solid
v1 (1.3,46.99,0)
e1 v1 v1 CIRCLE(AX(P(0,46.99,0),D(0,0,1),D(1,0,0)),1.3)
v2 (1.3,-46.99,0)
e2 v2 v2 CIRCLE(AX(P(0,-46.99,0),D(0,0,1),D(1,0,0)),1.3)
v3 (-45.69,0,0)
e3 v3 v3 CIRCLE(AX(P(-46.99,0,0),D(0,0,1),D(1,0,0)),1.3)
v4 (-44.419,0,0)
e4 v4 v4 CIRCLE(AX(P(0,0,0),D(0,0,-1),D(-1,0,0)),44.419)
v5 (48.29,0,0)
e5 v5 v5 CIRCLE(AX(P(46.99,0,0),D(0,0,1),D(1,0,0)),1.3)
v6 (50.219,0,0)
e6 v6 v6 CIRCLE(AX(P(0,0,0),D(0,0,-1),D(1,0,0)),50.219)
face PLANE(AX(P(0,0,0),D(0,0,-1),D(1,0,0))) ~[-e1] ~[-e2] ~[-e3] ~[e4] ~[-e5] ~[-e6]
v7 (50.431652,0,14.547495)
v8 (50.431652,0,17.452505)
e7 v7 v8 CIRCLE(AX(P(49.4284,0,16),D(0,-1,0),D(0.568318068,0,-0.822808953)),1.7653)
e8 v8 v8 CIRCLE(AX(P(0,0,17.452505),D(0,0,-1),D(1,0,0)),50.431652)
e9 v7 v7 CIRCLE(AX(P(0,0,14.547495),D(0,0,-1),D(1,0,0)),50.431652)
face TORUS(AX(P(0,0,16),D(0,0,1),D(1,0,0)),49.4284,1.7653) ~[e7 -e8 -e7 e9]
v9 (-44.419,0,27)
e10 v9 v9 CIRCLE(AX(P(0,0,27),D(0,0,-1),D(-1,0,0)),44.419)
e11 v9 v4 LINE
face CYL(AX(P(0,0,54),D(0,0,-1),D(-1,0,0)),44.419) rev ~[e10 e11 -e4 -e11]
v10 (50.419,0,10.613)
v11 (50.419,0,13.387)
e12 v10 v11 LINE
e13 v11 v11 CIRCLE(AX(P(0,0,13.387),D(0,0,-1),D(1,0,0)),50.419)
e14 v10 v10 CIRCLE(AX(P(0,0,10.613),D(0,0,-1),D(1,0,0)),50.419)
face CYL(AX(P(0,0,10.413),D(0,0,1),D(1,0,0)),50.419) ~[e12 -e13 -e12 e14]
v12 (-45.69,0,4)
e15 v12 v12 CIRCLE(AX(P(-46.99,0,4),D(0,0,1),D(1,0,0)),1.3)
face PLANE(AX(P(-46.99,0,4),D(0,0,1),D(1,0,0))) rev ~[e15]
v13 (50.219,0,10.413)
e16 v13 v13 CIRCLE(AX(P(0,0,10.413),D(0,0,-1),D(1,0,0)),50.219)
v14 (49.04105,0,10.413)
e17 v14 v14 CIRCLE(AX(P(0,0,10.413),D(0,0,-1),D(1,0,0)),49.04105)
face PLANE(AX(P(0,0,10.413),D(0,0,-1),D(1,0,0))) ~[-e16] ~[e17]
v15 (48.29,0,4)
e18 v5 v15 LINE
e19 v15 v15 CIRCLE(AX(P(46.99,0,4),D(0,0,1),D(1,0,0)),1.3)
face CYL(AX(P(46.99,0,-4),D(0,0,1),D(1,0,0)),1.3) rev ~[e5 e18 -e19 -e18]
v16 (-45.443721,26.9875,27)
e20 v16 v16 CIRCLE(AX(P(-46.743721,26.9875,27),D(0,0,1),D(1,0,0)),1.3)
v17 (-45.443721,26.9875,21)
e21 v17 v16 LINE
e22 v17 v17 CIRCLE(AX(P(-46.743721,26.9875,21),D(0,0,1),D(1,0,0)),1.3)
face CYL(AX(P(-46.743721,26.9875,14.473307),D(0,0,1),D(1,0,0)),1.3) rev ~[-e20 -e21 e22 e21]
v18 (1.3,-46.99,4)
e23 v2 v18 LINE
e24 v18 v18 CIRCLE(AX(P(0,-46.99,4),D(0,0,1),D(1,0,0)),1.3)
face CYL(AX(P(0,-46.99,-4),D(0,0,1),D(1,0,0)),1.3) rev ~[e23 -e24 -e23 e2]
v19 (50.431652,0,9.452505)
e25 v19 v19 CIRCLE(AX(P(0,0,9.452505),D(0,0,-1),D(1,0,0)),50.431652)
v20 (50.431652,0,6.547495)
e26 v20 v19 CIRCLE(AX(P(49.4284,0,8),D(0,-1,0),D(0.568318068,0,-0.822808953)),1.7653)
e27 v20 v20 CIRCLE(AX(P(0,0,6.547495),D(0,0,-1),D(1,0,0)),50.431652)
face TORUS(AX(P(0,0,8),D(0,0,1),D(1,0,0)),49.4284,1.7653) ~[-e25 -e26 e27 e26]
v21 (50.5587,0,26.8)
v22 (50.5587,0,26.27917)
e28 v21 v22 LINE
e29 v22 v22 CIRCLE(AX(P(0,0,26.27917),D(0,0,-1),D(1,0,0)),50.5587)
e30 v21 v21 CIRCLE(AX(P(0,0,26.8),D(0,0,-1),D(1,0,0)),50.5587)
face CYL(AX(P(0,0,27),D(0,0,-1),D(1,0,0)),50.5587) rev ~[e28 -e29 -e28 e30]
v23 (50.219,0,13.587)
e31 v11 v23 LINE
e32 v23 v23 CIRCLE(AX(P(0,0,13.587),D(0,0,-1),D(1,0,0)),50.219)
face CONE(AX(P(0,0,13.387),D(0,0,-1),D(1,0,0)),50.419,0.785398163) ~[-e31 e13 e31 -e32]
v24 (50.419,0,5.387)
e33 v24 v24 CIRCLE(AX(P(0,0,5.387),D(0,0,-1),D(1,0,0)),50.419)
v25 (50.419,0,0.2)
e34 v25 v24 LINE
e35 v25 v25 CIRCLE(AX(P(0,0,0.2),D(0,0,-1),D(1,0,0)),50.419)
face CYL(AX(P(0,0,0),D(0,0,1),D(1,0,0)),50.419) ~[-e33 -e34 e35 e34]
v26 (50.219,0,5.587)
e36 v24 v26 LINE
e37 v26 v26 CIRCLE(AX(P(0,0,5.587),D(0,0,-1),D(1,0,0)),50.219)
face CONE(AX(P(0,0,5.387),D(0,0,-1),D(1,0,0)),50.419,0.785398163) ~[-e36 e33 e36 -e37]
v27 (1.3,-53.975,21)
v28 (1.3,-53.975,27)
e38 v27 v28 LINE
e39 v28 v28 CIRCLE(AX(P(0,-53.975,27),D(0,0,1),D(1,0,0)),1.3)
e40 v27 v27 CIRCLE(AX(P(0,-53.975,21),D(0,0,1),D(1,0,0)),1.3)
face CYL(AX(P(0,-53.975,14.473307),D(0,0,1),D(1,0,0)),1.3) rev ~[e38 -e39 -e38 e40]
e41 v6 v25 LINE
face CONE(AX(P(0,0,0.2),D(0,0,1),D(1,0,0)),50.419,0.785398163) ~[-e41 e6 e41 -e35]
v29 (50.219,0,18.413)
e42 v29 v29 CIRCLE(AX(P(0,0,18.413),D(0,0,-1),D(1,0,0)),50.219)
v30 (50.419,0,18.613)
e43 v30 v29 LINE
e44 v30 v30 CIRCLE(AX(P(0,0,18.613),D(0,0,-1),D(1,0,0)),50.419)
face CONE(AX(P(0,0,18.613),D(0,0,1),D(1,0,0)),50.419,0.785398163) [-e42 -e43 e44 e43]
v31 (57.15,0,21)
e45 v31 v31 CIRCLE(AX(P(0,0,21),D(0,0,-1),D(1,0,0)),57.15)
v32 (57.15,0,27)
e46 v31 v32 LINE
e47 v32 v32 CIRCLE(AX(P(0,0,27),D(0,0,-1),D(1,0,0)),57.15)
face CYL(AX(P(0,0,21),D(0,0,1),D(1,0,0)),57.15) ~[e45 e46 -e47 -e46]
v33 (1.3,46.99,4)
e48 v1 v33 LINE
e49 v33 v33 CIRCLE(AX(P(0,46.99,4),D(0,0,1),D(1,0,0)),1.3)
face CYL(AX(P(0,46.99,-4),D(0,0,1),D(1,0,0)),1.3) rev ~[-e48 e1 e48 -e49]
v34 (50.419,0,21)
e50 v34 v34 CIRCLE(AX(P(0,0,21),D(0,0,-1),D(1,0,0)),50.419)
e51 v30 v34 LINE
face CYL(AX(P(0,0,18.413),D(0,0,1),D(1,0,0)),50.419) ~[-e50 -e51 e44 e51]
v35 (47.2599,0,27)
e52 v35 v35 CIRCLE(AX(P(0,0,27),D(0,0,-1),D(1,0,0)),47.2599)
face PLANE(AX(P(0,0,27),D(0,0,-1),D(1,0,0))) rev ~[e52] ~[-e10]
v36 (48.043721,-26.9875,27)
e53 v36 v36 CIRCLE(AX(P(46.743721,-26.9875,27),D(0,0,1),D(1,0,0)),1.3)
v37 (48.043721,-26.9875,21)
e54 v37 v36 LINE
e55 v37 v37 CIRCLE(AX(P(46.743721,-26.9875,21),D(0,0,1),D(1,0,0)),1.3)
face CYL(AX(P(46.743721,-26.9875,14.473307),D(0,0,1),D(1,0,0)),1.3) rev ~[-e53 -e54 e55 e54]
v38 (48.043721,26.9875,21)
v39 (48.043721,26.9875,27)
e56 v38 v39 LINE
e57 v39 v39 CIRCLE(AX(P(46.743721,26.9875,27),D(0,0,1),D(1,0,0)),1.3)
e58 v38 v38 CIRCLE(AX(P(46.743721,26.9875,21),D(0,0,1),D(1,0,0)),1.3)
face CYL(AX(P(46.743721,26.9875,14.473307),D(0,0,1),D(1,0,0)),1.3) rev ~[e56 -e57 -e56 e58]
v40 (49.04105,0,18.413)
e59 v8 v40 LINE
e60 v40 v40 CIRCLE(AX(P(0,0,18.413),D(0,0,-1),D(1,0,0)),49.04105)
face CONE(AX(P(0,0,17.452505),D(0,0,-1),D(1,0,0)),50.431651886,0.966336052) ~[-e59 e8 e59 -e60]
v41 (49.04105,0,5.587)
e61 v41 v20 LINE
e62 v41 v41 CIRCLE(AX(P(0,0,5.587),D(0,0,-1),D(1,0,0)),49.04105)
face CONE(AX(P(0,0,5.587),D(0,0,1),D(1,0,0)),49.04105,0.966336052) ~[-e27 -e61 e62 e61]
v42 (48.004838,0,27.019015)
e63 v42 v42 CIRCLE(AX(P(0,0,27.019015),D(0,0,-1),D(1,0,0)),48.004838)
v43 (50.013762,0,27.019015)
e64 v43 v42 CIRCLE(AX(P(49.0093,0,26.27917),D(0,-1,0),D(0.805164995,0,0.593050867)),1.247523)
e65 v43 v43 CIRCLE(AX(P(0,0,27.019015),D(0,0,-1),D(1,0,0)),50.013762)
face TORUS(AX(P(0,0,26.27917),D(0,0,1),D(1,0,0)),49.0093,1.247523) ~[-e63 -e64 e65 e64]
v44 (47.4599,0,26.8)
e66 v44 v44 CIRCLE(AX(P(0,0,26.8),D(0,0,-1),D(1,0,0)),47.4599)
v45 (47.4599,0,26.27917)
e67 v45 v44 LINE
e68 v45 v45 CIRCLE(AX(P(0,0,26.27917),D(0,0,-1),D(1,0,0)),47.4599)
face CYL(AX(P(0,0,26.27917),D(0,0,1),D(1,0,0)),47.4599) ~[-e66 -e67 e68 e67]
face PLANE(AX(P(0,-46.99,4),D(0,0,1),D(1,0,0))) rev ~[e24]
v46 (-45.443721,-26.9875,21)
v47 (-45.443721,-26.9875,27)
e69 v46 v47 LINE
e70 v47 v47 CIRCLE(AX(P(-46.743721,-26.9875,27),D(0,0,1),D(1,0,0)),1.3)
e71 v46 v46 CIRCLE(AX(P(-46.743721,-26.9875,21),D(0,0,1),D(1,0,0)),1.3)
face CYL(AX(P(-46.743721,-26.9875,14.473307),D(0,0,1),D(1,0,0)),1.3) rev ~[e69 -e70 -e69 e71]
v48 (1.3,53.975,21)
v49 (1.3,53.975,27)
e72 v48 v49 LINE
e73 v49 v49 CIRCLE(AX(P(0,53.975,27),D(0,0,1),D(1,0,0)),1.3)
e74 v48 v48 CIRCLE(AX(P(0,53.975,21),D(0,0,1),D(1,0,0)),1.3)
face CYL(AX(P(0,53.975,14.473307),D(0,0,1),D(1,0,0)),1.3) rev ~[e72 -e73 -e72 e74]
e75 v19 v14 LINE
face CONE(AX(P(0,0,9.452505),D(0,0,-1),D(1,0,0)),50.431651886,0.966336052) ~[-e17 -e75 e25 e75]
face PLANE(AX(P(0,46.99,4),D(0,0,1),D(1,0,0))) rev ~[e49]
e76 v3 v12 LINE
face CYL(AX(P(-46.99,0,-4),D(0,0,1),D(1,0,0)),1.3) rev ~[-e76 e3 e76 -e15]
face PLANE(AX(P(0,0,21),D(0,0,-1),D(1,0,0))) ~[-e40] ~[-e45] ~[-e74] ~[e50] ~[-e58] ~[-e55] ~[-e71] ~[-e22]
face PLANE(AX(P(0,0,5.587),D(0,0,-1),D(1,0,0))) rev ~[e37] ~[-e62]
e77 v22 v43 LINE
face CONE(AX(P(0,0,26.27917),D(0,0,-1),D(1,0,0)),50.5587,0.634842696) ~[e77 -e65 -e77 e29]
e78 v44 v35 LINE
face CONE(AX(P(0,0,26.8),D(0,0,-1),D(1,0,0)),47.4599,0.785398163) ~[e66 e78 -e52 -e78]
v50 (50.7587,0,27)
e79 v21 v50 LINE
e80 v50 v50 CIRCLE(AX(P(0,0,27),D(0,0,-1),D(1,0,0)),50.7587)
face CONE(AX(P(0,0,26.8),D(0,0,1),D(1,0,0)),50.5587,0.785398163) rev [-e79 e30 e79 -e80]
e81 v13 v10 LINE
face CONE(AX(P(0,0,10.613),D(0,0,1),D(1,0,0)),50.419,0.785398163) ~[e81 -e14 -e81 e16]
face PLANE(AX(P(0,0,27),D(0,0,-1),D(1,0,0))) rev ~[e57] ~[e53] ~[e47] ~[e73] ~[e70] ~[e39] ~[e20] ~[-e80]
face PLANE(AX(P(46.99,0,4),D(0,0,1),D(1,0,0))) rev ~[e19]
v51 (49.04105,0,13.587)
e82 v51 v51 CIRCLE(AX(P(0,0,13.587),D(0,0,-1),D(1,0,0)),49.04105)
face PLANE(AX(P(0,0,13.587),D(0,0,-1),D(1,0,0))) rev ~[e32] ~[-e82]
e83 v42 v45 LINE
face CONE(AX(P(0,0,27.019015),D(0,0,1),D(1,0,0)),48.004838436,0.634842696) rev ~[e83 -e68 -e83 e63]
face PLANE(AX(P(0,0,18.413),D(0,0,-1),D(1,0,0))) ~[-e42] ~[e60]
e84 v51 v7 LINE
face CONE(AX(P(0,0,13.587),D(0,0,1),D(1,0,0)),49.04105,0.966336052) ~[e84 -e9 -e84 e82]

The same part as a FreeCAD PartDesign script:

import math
import FreeCAD as App
import Part
import Sketcher
from FreeCAD import Vector
Q = App.Units.Quantity


def edges_at(feature, points):
    """Names of the edges that pass closest to the given points."""
    edges = feature.Shape.Edges
    near = lambda p: min(range(len(edges)), key=lambda i: edges[i].distToShape(Part.Vertex(*p))[0])
    return sorted({f"Edge{near(p) + 1}" for p in points})

doc = App.newDocument("Part")
params = doc.addObject("Spreadsheet::Sheet", "Params")
for row, (alias, value) in enumerate([
    ("sketch1_height", "27 mm"),
    ("sketch1_height2", "6 mm"),
    ("revolution_angle", "360 deg"),
    ("sketch2_diameter", "2.6 mm"),
    ("hole_diameter", "2.6 mm"),
    ("hole_depth", "4 mm"),
    ("sketch3_diameter", "2.6 mm"),
    ("hole2_diameter", "2.6 mm"),
    ("hole2_depth", "6.526693 mm"),
    ("hole3_diameter", "88.838 mm"),
    ("hole3_depth", "27 mm"),
    ("chamfer_size", "0.2 mm"),
], start=1):
    params.set(f"A{row}", alias)
    params.set(f"B{row}", "=" + value)
    params.setAlias(f"B{row}", alias)

body = doc.addObject("PartDesign::Body", "Body")

sketch1 = doc.addObject("Sketcher::SketchObject", "Sketch")
body.addObject(sketch1)
sketch1.AttachmentSupport = (doc.XZ_Plane, [""])
sketch1.MapMode = "FlatFace"
sketch1.addGeometry(Part.LineSegment(Vector(47.2599, 27, 0), Vector(0, 27, 0)), False)
sketch1.addGeometry(Part.LineSegment(Vector(0, 27, 0), Vector(0, 0, 0)), False)
sketch1.addGeometry(Part.LineSegment(Vector(0, 0, 0), Vector(50.419, 0, 0)), False)
sketch1.addGeometry(Part.LineSegment(Vector(50.419, 0, 0), Vector(50.419, 5.587, 0)), False)
sketch1.addGeometry(Part.LineSegment(Vector(50.419, 5.587, 0), Vector(49.04105, 5.587, 0)), False)
sketch1.addGeometry(Part.LineSegment(Vector(49.04105, 5.587, 0), Vector(50.431652, 6.547495, 0)), False)
sketch1.addGeometry(Part.ArcOfCircle(Part.Circle(Vector(49.4284, 8, 0), Vector(0, 0, 1), 1.7653), math.radians(-55.366977), math.radians(55.366977)), False)
sketch1.addGeometry(Part.LineSegment(Vector(50.431652, 9.452505, 0), Vector(49.04105, 10.413, 0)), False)
sketch1.addGeometry(Part.LineSegment(Vector(49.04105, 10.413, 0), Vector(50.419, 10.413, 0)), False)
sketch1.addGeometry(Part.LineSegment(Vector(50.419, 10.413, 0), Vector(50.419, 13.587, 0)), False)
sketch1.addGeometry(Part.LineSegment(Vector(50.419, 13.587, 0), Vector(49.04105, 13.587, 0)), False)
sketch1.addGeometry(Part.LineSegment(Vector(49.04105, 13.587, 0), Vector(50.431652, 14.547495, 0)), False)
sketch1.addGeometry(Part.ArcOfCircle(Part.Circle(Vector(49.4284, 16, 0), Vector(0, 0, 1), 1.7653), math.radians(-55.366977), math.radians(55.366977)), False)
sketch1.addGeometry(Part.LineSegment(Vector(50.431652, 17.452505, 0), Vector(49.04105, 18.413, 0)), False)
sketch1.addGeometry(Part.LineSegment(Vector(49.04105, 18.413, 0), Vector(50.419, 18.413, 0)), False)
sketch1.addGeometry(Part.LineSegment(Vector(50.419, 18.413, 0), Vector(50.419, 21, 0)), False)
sketch1.addGeometry(Part.LineSegment(Vector(50.419, 21, 0), Vector(57.15, 21, 0)), False)
sketch1.addGeometry(Part.LineSegment(Vector(57.15, 21, 0), Vector(57.15, 27, 0)), False)
sketch1.addGeometry(Part.LineSegment(Vector(57.15, 27, 0), Vector(50.5587, 27, 0)), False)
sketch1.addGeometry(Part.LineSegment(Vector(50.5587, 27, 0), Vector(50.5587, 26.27917, 0)), False)
sketch1.addGeometry(Part.LineSegment(Vector(50.5587, 26.27917, 0), Vector(50.013762, 27.019015, 0)), False)
sketch1.addGeometry(Part.ArcOfCircle(Part.Circle(Vector(49.0093, 26.27917, 0), Vector(0, 0, 1), 1.247523), math.radians(36.373807), math.radians(143.626193)), False)
sketch1.addGeometry(Part.LineSegment(Vector(48.004838, 27.019015, 0), Vector(47.4599, 26.27917, 0)), False)
sketch1.addGeometry(Part.LineSegment(Vector(47.4599, 26.27917, 0), Vector(47.4599, 26.8, 0)), False)
sketch1.addGeometry(Part.LineSegment(Vector(47.4599, 26.8, 0), Vector(47.2599, 27, 0)), False)
sketch1.addConstraint(Sketcher.Constraint("Coincident", 0, 2, 1, 1))
sketch1.addConstraint(Sketcher.Constraint("Coincident", 1, 2, 2, 1))
sketch1.addConstraint(Sketcher.Constraint("Coincident", 2, 2, 3, 1))
sketch1.addConstraint(Sketcher.Constraint("Coincident", 3, 2, 4, 1))
sketch1.addConstraint(Sketcher.Constraint("Coincident", 4, 2, 5, 1))
sketch1.addConstraint(Sketcher.Constraint("Tangent", 5, 2, 6, 1))
sketch1.addConstraint(Sketcher.Constraint("Tangent", 6, 2, 7, 1))
sketch1.addConstraint(Sketcher.Constraint("Coincident", 7, 2, 8, 1))
sketch1.addConstraint(Sketcher.Constraint("Coincident", 8, 2, 9, 1))
sketch1.addConstraint(Sketcher.Constraint("Coincident", 9, 2, 10, 1))
sketch1.addConstraint(Sketcher.Constraint("Coincident", 10, 2, 11, 1))
sketch1.addConstraint(Sketcher.Constraint("Tangent", 11, 2, 12, 1))
sketch1.addConstraint(Sketcher.Constraint("Tangent", 12, 2, 13, 1))
sketch1.addConstraint(Sketcher.Constraint("Coincident", 13, 2, 14, 1))
sketch1.addConstraint(Sketcher.Constraint("Coincident", 14, 2, 15, 1))
sketch1.addConstraint(Sketcher.Constraint("Coincident", 15, 2, 16, 1))
sketch1.addConstraint(Sketcher.Constraint("Coincident", 16, 2, 17, 1))
sketch1.addConstraint(Sketcher.Constraint("Coincident", 17, 2, 18, 1))
sketch1.addConstraint(Sketcher.Constraint("Coincident", 18, 2, 19, 1))
sketch1.addConstraint(Sketcher.Constraint("Coincident", 19, 2, 20, 1))
sketch1.addConstraint(Sketcher.Constraint("Tangent", 20, 2, 21, 1))
sketch1.addConstraint(Sketcher.Constraint("Tangent", 21, 2, 22, 1))
sketch1.addConstraint(Sketcher.Constraint("Coincident", 22, 2, 23, 1))
sketch1.addConstraint(Sketcher.Constraint("Coincident", 23, 2, 24, 1))
sketch1.addConstraint(Sketcher.Constraint("Coincident", 24, 2, 0, 1))
sketch1.addConstraint(Sketcher.Constraint("Horizontal", 0))
sketch1.addConstraint(Sketcher.Constraint("Vertical", 1))
sketch1.addConstraint(Sketcher.Constraint("Horizontal", 2))
sketch1.addConstraint(Sketcher.Constraint("Vertical", 3))
sketch1.addConstraint(Sketcher.Constraint("Horizontal", 4))
sketch1.addConstraint(Sketcher.Constraint("Horizontal", 8))
sketch1.addConstraint(Sketcher.Constraint("Vertical", 9))
sketch1.addConstraint(Sketcher.Constraint("Horizontal", 10))
sketch1.addConstraint(Sketcher.Constraint("Horizontal", 14))
sketch1.addConstraint(Sketcher.Constraint("Vertical", 15))
sketch1.addConstraint(Sketcher.Constraint("Horizontal", 16))
sketch1.addConstraint(Sketcher.Constraint("Vertical", 17))
sketch1.addConstraint(Sketcher.Constraint("Horizontal", 18))
sketch1.addConstraint(Sketcher.Constraint("Vertical", 19))
sketch1.addConstraint(Sketcher.Constraint("Vertical", 23))
sketch1.addConstraint(Sketcher.Constraint("Coincident", 1, 2, -1, 1))
sketch1.addConstraint(Sketcher.Constraint("Equal", 6, 12))
sketch1.addConstraint(Sketcher.Constraint("Parallel", 5, 11))
sketch1.addConstraint(Sketcher.Constraint("Parallel", 7, 13))
sketch1.addConstraint(Sketcher.Constraint("Horizontal", 0, 2, 17, 2))
sketch1.addConstraint(Sketcher.Constraint("Horizontal", 21, 3, 19, 2))
sketch1.addConstraint(Sketcher.Constraint("Horizontal", 20, 2, 21, 2))
sketch1.addConstraint(Sketcher.Constraint("Horizontal", 19, 2, 22, 2))
sketch1.addConstraint(Sketcher.Constraint("Vertical", 6, 3, 12, 3))
sketch1.addConstraint(Sketcher.Constraint("Vertical", 5, 2, 6, 2))
sketch1.addConstraint(Sketcher.Constraint("Vertical", 4, 2, 7, 2))
sketch1.addConstraint(Sketcher.Constraint("Vertical", 3, 2, 8, 2))
sketch1.addConstraint(Sketcher.Constraint("Vertical", 7, 2, 10, 2))
sketch1.addConstraint(Sketcher.Constraint("Vertical", 10, 2, 13, 2))
sketch1.addConstraint(Sketcher.Constraint("Vertical", 9, 2, 14, 2))
sketch1.addConstraint(Sketcher.Constraint("DistanceY", 1, 2, 1, 1, Q("27 mm")))
sketch1.addConstraint(Sketcher.Constraint("DistanceY", 17, 1, 17, 2, Q("6 mm")))
sketch1.addConstraint(Sketcher.Constraint("Angle", 24, Q("135 deg")))
sketch1.addConstraint(Sketcher.Constraint("DistanceY", -1, 1, 6, 3, Q("8 mm")))
sketch1.addConstraint(Sketcher.Constraint("DistanceY", -1, 1, 12, 3, Q("16 mm")))
sketch1.addConstraint(Sketcher.Constraint("DistanceY", -1, 1, 23, 2, Q("26.8 mm")))
sketch1.addConstraint(Sketcher.Constraint("Radius", 6, Q("1.7653 mm")))
sketch1.addConstraint(Sketcher.Constraint("DistanceX", 2, 1, 2, 2, Q("50.419 mm")))
sketch1.addConstraint(Sketcher.Constraint("DistanceX", 16, 1, 16, 2, Q("6.731 mm")))
sketch1.addConstraint(Sketcher.Constraint("DistanceY", 3, 1, 3, 2, Q("5.587 mm")))
sketch1.addConstraint(Sketcher.Constraint("DistanceX", 0, 2, 0, 1, Q("47.2599 mm")))
sketch1.addConstraint(Sketcher.Constraint("DistanceX", 18, 2, 18, 1, Q("6.5913 mm")))
sketch1.addConstraint(Sketcher.Constraint("Radius", 21, Q("1.247523 mm")))
sketch1.addConstraint(Sketcher.Constraint("DistanceX", 4, 2, 4, 1, Q("1.37795 mm")))
sketch1.addConstraint(Sketcher.Constraint("DistanceY", 19, 2, 19, 1, Q("0.72083 mm")))
sketch1.addConstraint(Sketcher.Constraint("DistanceX", -1, 1, 6, 3, Q("49.4284 mm")))
sketch1.setExpression("Constraints[55]", "Params.sketch1_height")
sketch1.setExpression("Constraints[56]", "Params.sketch1_height2")
revolution = doc.addObject("PartDesign::Revolution", "Revolution")
body.addObject(revolution)
revolution.Profile = sketch1
revolution.ReferenceAxis = (sketch1, ["V_Axis"])
revolution.setExpression("Angle", "Params.revolution_angle")

sketch2 = doc.addObject("Sketcher::SketchObject", "Sketch001")
body.addObject(sketch2)
sketch2.AttachmentSupport = (doc.XY_Plane, [""])
sketch2.MapMode = "FlatFace"
sketch2.addGeometry(Part.Circle(Vector(46.99, 0, 0), Vector(0, 0, 1), 1.3), False)
sketch2.addGeometry(Part.Circle(Vector(0, 46.99, 0), Vector(0, 0, 1), 1.3), False)
sketch2.addGeometry(Part.Circle(Vector(-46.99, 0, 0), Vector(0, 0, 1), 1.3), False)
sketch2.addGeometry(Part.Circle(Vector(0, -46.99, 0), Vector(0, 0, 1), 1.3), False)
sketch2.addConstraint(Sketcher.Constraint("Equal", 0, 1))
sketch2.addConstraint(Sketcher.Constraint("Equal", 1, 2))
sketch2.addConstraint(Sketcher.Constraint("Equal", 2, 3))
sketch2.addConstraint(Sketcher.Constraint("Symmetric", 0, 3, 2, 3, -1, 1))
sketch2.addConstraint(Sketcher.Constraint("Symmetric", 1, 3, 3, 3, -1, 1))
sketch2.addConstraint(Sketcher.Constraint("PointOnObject", 0, 3, -1))
sketch2.addConstraint(Sketcher.Constraint("PointOnObject", 1, 3, -2))
sketch2.addConstraint(Sketcher.Constraint("Diameter", 0, Q("2.6 mm")))
sketch2.addConstraint(Sketcher.Constraint("DistanceX", -1, 1, 0, 3, Q("46.99 mm")))
sketch2.addConstraint(Sketcher.Constraint("DistanceY", -1, 1, 1, 3, Q("46.99 mm")))
sketch2.setExpression("Constraints[7]", "Params.sketch2_diameter")
doc.recompute()
hole = doc.addObject("PartDesign::Hole", "Hole")
body.addObject(hole)
hole.Profile = sketch2
hole.ThreadType = "None"
hole.setExpression("Diameter", "Params.hole_diameter")
hole.DepthType = "Dimension"
hole.setExpression("Depth", "Params.hole_depth")
hole.DrillPoint = "Flat"
hole.Reversed = True

sketch3 = doc.addObject("Sketcher::SketchObject", "Sketch002")
body.addObject(sketch3)
sketch3.AttachmentSupport = (doc.XY_Plane, [""])
sketch3.MapMode = "FlatFace"
sketch3.AttachmentOffset = App.Placement(Vector(0, 0, 21), App.Rotation())
sketch3.addGeometry(Part.Circle(Vector(0, 53.975, 0), Vector(0, 0, 1), 1.3), False)
sketch3.addGeometry(Part.Circle(Vector(46.743721, 26.9875, 0), Vector(0, 0, 1), 1.3), False)
sketch3.addGeometry(Part.Circle(Vector(46.743721, -26.9875, 0), Vector(0, 0, 1), 1.3), False)
sketch3.addGeometry(Part.Circle(Vector(0, -53.975, 0), Vector(0, 0, 1), 1.3), False)
sketch3.addGeometry(Part.Circle(Vector(-46.743721, -26.9875, 0), Vector(0, 0, 1), 1.3), False)
sketch3.addGeometry(Part.Circle(Vector(-46.743721, 26.9875, 0), Vector(0, 0, 1), 1.3), False)
sketch3.addConstraint(Sketcher.Constraint("Equal", 0, 1))
sketch3.addConstraint(Sketcher.Constraint("Equal", 1, 2))
sketch3.addConstraint(Sketcher.Constraint("Equal", 2, 3))
sketch3.addConstraint(Sketcher.Constraint("Equal", 3, 4))
sketch3.addConstraint(Sketcher.Constraint("Equal", 4, 5))
sketch3.addConstraint(Sketcher.Constraint("Symmetric", 0, 3, 3, 3, -1, 1))
sketch3.addConstraint(Sketcher.Constraint("Symmetric", 1, 3, 4, 3, -1, 1))
sketch3.addConstraint(Sketcher.Constraint("Symmetric", 2, 3, 5, 3, -1, 1))
sketch3.addConstraint(Sketcher.Constraint("Symmetric", 2, 3, 4, 3, -2))
sketch3.addConstraint(Sketcher.Constraint("PointOnObject", 0, 3, -2))
sketch3.addConstraint(Sketcher.Constraint("Diameter", 0, Q("2.6 mm")))
sketch3.addConstraint(Sketcher.Constraint("DistanceY", 3, 3, 0, 3, Q("107.95 mm")))
sketch3.addConstraint(Sketcher.Constraint("DistanceY", 2, 3, 1, 3, Q("53.975 mm")))
sketch3.addConstraint(Sketcher.Constraint("DistanceX", -1, 1, 1, 3, Q("46.743721 mm")))
sketch3.setExpression("Constraints[10]", "Params.sketch3_diameter")
doc.recompute()
hole2 = doc.addObject("PartDesign::Hole", "Hole001")
body.addObject(hole2)
hole2.Profile = sketch3
hole2.ThreadType = "None"
hole2.setExpression("Diameter", "Params.hole2_diameter")
hole2.DepthType = "Dimension"
hole2.setExpression("Depth", "Params.hole2_depth")
hole2.DrillPoint = "Flat"
hole2.Reversed = True

sketch4 = doc.addObject("Sketcher::SketchObject", "Sketch003")
body.addObject(sketch4)
sketch4.AttachmentSupport = (doc.XY_Plane, [""])
sketch4.MapMode = "FlatFace"
sketch4.AttachmentOffset = App.Placement(Vector(0, 0, 27), App.Rotation())
sketch4.addGeometry(Part.Circle(Vector(0, 0, 0), Vector(0, 0, 1), 44.419), False)
sketch4.addConstraint(Sketcher.Constraint("Coincident", 0, 3, -1, 1))
sketch4.addConstraint(Sketcher.Constraint("Diameter", 0, Q("88.838 mm")))
doc.recompute()
hole3 = doc.addObject("PartDesign::Hole", "Hole002")
body.addObject(hole3)
hole3.Profile = sketch4
hole3.ThreadType = "None"
hole3.setExpression("Diameter", "Params.hole3_diameter")
hole3.DepthType = "Dimension"
hole3.setExpression("Depth", "Params.hole3_depth")
hole3.DrillPoint = "Flat"
doc.recompute()

chamfer = doc.addObject("PartDesign::Chamfer", "Chamfer")
body.addObject(chamfer)
chamfer.Base = (hole3, edges_at(hole3, [
    (-50.559, 0, 27),
    (-50.419, 0, 18.413),
    (-50.419, 0, 13.587),
    (-50.419, 0, 10.413),
    (-50.419, 0, 5.587),
    (-50.419, 0, 0),
]))
chamfer.setExpression("Size", "Params.chamfer_size")

doc.recompute()
